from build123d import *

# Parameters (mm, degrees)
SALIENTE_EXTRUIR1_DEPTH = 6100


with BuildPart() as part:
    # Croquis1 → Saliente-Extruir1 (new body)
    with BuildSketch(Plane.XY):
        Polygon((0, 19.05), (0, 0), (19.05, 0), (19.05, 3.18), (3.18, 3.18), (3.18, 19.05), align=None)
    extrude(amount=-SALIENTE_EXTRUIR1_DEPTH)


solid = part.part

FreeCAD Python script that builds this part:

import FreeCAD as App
import Part
import Sketcher

V = App.Vector

doc = App.newDocument("Part")
body = doc.addObject("PartDesign::Body", "Body")

# Sketch on XY plane
sketch1 = doc.addObject("Sketcher::SketchObject", "Sketch")
body.addObject(sketch1)
sketch1.AttachmentSupport = (doc.XY_Plane, [""])
sketch1.MapMode = "FlatFace"
sketch1.addGeometry([
    Part.LineSegment(V(0, 19.1, 0), V(0, 0, 0)),  # 0
    Part.LineSegment(V(0, 0, 0), V(19.1, 0, 0)),  # 1
    Part.LineSegment(V(19.1, 0, 0), V(19.1, 3.2, 0)),  # 2
    Part.LineSegment(V(19.1, 3.2, 0), V(3.2, 3.2, 0)),  # 3
    Part.LineSegment(V(3.2, 3.2, 0), V(3.2, 19.1, 0)),  # 4
    Part.LineSegment(V(3.2, 19.1, 0), V(0, 19.1, 0)),  # 5
], False)
sketch1.addConstraint([
    Sketcher.Constraint("Coincident", 0, 2, 1, 1),
    Sketcher.Constraint("Coincident", 1, 2, 2, 1),
    Sketcher.Constraint("Coincident", 2, 2, 3, 1),
    Sketcher.Constraint("Coincident", 3, 2, 4, 1),
    Sketcher.Constraint("Coincident", 4, 2, 5, 1),
    Sketcher.Constraint("Coincident", 5, 2, 0, 1),
    Sketcher.Constraint("Vertical", 0),
    Sketcher.Constraint("Horizontal", 1),
    Sketcher.Constraint("Vertical", 2),
    Sketcher.Constraint("Horizontal", 3),
    Sketcher.Constraint("Vertical", 4),
    Sketcher.Constraint("Horizontal", 5),
    Sketcher.Constraint("Coincident", 0, 2, -1, 1),
    Sketcher.Constraint("Equal", 1, 0),
    Sketcher.Constraint("Equal", 5, 2),
    Sketcher.Constraint("DistanceX", 1, 1, 1, 2, 19.05),
    Sketcher.Constraint("DistanceX", 3, 2, 3, 1, 15.87),
])
pad1 = doc.addObject("PartDesign::Pad", "Pad")
body.addObject(pad1)
pad1.Profile = sketch1
pad1.Length = 6100
pad1.Reversed = True

doc.recompute()
